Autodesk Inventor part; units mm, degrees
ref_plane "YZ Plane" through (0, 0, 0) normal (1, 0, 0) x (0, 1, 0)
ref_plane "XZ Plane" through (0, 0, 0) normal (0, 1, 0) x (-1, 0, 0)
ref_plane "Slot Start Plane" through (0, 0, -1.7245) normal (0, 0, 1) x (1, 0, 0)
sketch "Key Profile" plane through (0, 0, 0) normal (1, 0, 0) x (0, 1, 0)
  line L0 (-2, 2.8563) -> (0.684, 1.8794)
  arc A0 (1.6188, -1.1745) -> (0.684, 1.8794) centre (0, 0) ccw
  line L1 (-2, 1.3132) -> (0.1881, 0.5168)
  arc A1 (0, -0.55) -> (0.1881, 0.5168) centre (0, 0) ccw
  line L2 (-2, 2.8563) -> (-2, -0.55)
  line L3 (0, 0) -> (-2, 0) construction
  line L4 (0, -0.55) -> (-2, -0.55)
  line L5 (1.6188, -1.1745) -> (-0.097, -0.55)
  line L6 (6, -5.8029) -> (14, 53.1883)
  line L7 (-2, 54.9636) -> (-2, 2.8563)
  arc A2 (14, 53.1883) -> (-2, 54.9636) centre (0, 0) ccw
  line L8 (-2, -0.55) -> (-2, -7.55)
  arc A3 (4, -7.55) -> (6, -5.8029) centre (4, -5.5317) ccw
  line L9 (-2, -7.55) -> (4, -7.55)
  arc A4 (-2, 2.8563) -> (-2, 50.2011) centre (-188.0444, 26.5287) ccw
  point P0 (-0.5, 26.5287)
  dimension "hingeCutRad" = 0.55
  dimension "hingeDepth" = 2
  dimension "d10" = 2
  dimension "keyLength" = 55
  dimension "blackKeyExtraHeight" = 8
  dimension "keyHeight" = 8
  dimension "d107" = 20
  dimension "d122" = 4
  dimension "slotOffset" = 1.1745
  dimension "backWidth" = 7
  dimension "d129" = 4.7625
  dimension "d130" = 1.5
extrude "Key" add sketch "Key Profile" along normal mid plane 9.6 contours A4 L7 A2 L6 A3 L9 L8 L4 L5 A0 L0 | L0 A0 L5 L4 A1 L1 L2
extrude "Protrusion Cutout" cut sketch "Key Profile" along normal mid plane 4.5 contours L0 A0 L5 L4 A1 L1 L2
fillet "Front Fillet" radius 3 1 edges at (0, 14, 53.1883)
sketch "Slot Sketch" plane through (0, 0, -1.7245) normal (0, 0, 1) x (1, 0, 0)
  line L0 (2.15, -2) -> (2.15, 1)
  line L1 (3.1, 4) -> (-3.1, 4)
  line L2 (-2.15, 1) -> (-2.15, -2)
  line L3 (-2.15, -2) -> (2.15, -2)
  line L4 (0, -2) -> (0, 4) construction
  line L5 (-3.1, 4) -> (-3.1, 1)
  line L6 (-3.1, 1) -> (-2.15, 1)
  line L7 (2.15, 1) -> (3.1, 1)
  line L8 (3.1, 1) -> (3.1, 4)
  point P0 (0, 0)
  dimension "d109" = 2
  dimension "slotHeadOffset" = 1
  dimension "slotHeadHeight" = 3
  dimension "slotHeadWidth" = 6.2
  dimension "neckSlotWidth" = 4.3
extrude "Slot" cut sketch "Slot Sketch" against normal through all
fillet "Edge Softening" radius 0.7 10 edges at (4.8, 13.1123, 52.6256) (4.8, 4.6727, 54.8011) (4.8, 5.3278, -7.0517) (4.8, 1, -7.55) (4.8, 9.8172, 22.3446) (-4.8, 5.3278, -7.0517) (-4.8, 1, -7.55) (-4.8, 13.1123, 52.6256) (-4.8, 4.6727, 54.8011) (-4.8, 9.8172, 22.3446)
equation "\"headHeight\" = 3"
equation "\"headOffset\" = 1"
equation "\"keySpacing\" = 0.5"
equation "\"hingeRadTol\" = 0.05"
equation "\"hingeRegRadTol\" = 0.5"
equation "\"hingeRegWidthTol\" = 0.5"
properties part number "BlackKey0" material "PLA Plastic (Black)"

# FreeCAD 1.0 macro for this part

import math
import FreeCAD as App
import Part
import Sketcher
from FreeCAD import Vector
Q = App.Units.Quantity


def edges_at(feature, points):
    """Names of the edges that pass closest to the given points."""
    edges = feature.Shape.Edges
    near = lambda p: min(range(len(edges)), key=lambda i: edges[i].distToShape(Part.Vertex(*p))[0])
    return sorted({f"Edge{near(p) + 1}" for p in points})

doc = App.newDocument("Part")
body = doc.addObject("PartDesign::Body", "Body")

# Sketch on YZ plane
sketch1 = body.newObject("Sketcher::SketchObject", "Sketch")
sketch1.AttachmentSupport = (doc.getObject("YZ_Plane"), [""])
sketch1.MapMode = "FlatFace"
sketch1.addGeometry([
    Part.ArcOfCircle(Part.Circle(Vector(-188, 26.5, 0), Vector(0, 0, 1), 187.5), math.radians(-7.25), math.radians(7.25)),  # 0
    Part.LineSegment(Vector(-2, 2.9, 0), Vector(-2, 1.3, 0)),  # 1
    Part.LineSegment(Vector(-2, 1.3, 0), Vector(0.2, 0.5, 0)),  # 2
    Part.ArcOfCircle(Part.Circle(Vector(0, 0, 0), Vector(0, 0, 1), 0.6), math.radians(-90), math.radians(70)),  # 3
    Part.LineSegment(Vector(0, -0.6, 0), Vector(-2, -0.6, 0)),  # 4
    Part.LineSegment(Vector(-2, -0.6, 0), Vector(-2, -7.5, 0)),  # 5
    Part.LineSegment(Vector(-2, -7.5, 0), Vector(4, -7.5, 0)),  # 6
    Part.ArcOfCircle(Part.Circle(Vector(4, -5.5, 0), Vector(0, 0, 1), 2), math.radians(-90), math.radians(-8)),  # 7
    Part.LineSegment(Vector(6, -5.8, 0), Vector(14, 53.2, 0)),  # 8
    Part.ArcOfCircle(Part.Circle(Vector(0, 0, 0), Vector(0, 0, 1), 55), math.radians(75.25), math.radians(92.08)),  # 9
    Part.LineSegment(Vector(-2, 55, 0), Vector(-2, 50.2, 0)),  # 10
], False)
sketch1.addConstraint([
    Sketcher.Constraint("Coincident", 0, 1, 1, 1),
    Sketcher.Constraint("Coincident", 1, 2, 2, 1),
    Sketcher.Constraint("Tangent", 2, 2, 3, 2),
    Sketcher.Constraint("Tangent", 3, 1, 4, 1),
    Sketcher.Constraint("Coincident", 4, 2, 5, 1),
    Sketcher.Constraint("Coincident", 5, 2, 6, 1),
    Sketcher.Constraint("Tangent", 6, 2, 7, 1),
    Sketcher.Constraint("Tangent", 7, 2, 8, 1),
    Sketcher.Constraint("Coincident", 8, 2, 9, 1),
    Sketcher.Constraint("Coincident", 9, 2, 10, 1),
    Sketcher.Constraint("Coincident", 10, 2, 0, 2),
    Sketcher.Constraint("Vertical", 1),
    Sketcher.Constraint("Horizontal", 4),
    Sketcher.Constraint("Vertical", 5),
    Sketcher.Constraint("Horizontal", 6),
    Sketcher.Constraint("Vertical", 10),
    Sketcher.Constraint("Coincident", 3, 3, -1, 1),
    Sketcher.Constraint("Coincident", 9, 3, -1, 1),
    Sketcher.Constraint("Vertical", 1, 2, 4, 2),
    Sketcher.Constraint("Vertical", 5, 2, 9, 2),
    Sketcher.Constraint("Radius", 9, 55.0),
    Sketcher.Constraint("DistanceX", 4, 2, 4, 1, 2.0),
    Sketcher.Constraint("DistanceY", 5, 2, 5, 1, 7.0),
    Sketcher.Constraint("Angle", 2, Q("-20 deg")),
    Sketcher.Constraint("Radius", 3, 0.55),
    Sketcher.Constraint("DistanceX", -1, 1, 7, 3, 4.0),
    Sketcher.Constraint("DistanceX", 7, 3, 7, 2, 2.0),
    Sketcher.Constraint("DistanceY", 10, 2, 10, 1, 4.7625),
    Sketcher.Constraint("DistanceX", -1, 1, 8, 2, 14.0),
    Sketcher.Constraint("Radius", 0, 187.5444),
    Sketcher.Constraint("DistanceY", 1, 2, 1, 1, 1.543),
])
pad1 = body.newObject("PartDesign::Pad", "Pad")
pad1.Profile = sketch1
pad1.Length = 9.6
pad1.Midplane = True

# Sketch on YZ plane
sketch2 = body.newObject("Sketcher::SketchObject", "Sketch001")
sketch2.AttachmentSupport = (doc.getObject("YZ_Plane"), [""])
sketch2.MapMode = "FlatFace"
sketch2.addGeometry([
    Part.LineSegment(Vector(0.68, 1.88, 0), Vector(-2, 2.86, 0)),  # 0
    Part.LineSegment(Vector(-2, 2.86, 0), Vector(-2, 1.31, 0)),  # 1
    Part.LineSegment(Vector(-2, 1.31, 0), Vector(0.19, 0.52, 0)),  # 2
    Part.ArcOfCircle(Part.Circle(Vector(0, 0, 0), Vector(0, 0, 1), 0.55), math.radians(-90), math.radians(70)),  # 3
    Part.LineSegment(Vector(0, -0.55, 0), Vector(-0.1, -0.55, 0)),  # 4
    Part.LineSegment(Vector(-0.1, -0.55, 0), Vector(1.62, -1.17, 0)),  # 5
    Part.ArcOfCircle(Part.Circle(Vector(0, 0, 0), Vector(0, 0, 1), 2), math.radians(-36), math.radians(70)),  # 6
], False)
sketch2.addConstraint([
    Sketcher.Constraint("Coincident", 0, 2, 1, 1),
    Sketcher.Constraint("Coincident", 1, 2, 2, 1),
    Sketcher.Constraint("Tangent", 2, 2, 3, 2),
    Sketcher.Constraint("Tangent", 3, 1, 4, 1),
    Sketcher.Constraint("Coincident", 4, 2, 5, 1),
    Sketcher.Constraint("Coincident", 5, 2, 6, 1),
    Sketcher.Constraint("Tangent", 6, 2, 0, 1),
    Sketcher.Constraint("Vertical", 1),
    Sketcher.Constraint("Horizontal", 4),
    Sketcher.Constraint("Coincident", 3, 3, -1, 1),
    Sketcher.Constraint("Coincident", 6, 3, -1, 1),
    Sketcher.Constraint("Parallel", 0, 2),
    Sketcher.Constraint("Parallel", 2, 5),
    Sketcher.Constraint("Radius", 6, 2.0),
    Sketcher.Constraint("Angle", 2, Q("-20 deg")),
    Sketcher.Constraint("Radius", 3, 0.55),
    Sketcher.Constraint("DistanceX", 0, 2, -1, 1, 2.0),
    Sketcher.Constraint("DistanceY", 5, 2, -1, 1, 1.1745),
])
pocket1 = body.newObject("PartDesign::Pocket", "Pocket")
pocket1.Profile = sketch2
pocket1.Length = 4.5
pocket1.Midplane = True
doc.recompute()

fillet = body.newObject("PartDesign::Fillet", "Fillet")
fillet.Base = (pocket1, edges_at(pocket1, [(0, 14, 53.188)]))
fillet.Radius = 3

# Sketch on XY plane
sketch3 = body.newObject("Sketcher::SketchObject", "Sketch002")
sketch3.AttachmentSupport = (doc.getObject("XY_Plane"), [""])
sketch3.MapMode = "FlatFace"
sketch3.AttachmentOffset = App.Placement(Vector(0, 0, -1.7245), App.Rotation())
sketch3.addGeometry([
    Part.LineSegment(Vector(-2.1, -2, 0), Vector(2.1, -2, 0)),  # 0
    Part.LineSegment(Vector(2.1, -2, 0), Vector(2.1, 1, 0)),  # 1
    Part.LineSegment(Vector(2.1, 1, 0), Vector(3.1, 1, 0)),  # 2
    Part.LineSegment(Vector(3.1, 1, 0), Vector(3.1, 4, 0)),  # 3
    Part.LineSegment(Vector(3.1, 4, 0), Vector(-3.1, 4, 0)),  # 4
    Part.LineSegment(Vector(-3.1, 4, 0), Vector(-3.1, 1, 0)),  # 5
    Part.LineSegment(Vector(-3.1, 1, 0), Vector(-2.1, 1, 0)),  # 6
    Part.LineSegment(Vector(-2.1, 1, 0), Vector(-2.1, -2, 0)),  # 7
], False)
sketch3.addConstraint([
    Sketcher.Constraint("Coincident", 0, 2, 1, 1),
    Sketcher.Constraint("Coincident", 1, 2, 2, 1),
    Sketcher.Constraint("Coincident", 2, 2, 3, 1),
    Sketcher.Constraint("Coincident", 3, 2, 4, 1),
    Sketcher.Constraint("Coincident", 4, 2, 5, 1),
    Sketcher.Constraint("Coincident", 5, 2, 6, 1),
    Sketcher.Constraint("Coincident", 6, 2, 7, 1),
    Sketcher.Constraint("Coincident", 7, 2, 0, 1),
    Sketcher.Constraint("Horizontal", 0),
    Sketcher.Constraint("Vertical", 1),
    Sketcher.Constraint("Horizontal", 2),
    Sketcher.Constraint("Vertical", 3),
    Sketcher.Constraint("Horizontal", 4),
    Sketcher.Constraint("Vertical", 5),
    Sketcher.Constraint("Horizontal", 6),
    Sketcher.Constraint("Vertical", 7),
    Sketcher.Constraint("Symmetric", 2, 2, 5, 2, -2),
    Sketcher.Constraint("Equal", 2, 6),
    Sketcher.Constraint("Equal", 1, 3),
    Sketcher.Constraint("DistanceY", 1, 1, 1, 2, 3.0),
    Sketcher.Constraint("DistanceX", 0, 1, 0, 2, 4.3),
    Sketcher.Constraint("DistanceX", 4, 2, 4, 1, 6.2),
    Sketcher.Constraint("DistanceY", 0, 2, -1, 1, 2.0),
])
pocket2 = body.newObject("PartDesign::Pocket", "Pocket001")
pocket2.Profile = sketch3
pocket2.Type = "ThroughAll"
doc.recompute()

fillet2 = body.newObject("PartDesign::Fillet", "Fillet001")
fillet2.Base = (pocket2, edges_at(pocket2, [
    (4.8, 13.112, 52.626),
    (4.8, 4.673, 54.801),
    (4.8, 5.328, -7.052),
    (4.8, 1, -7.55),
    (4.8, 9.817, 22.345),
    (-4.8, 5.328, -7.052),
    (-4.8, 1, -7.55),
    (-4.8, 13.112, 52.626),
    (-4.8, 4.673, 54.801),
    (-4.8, 9.817, 22.345),
]))
fillet2.Radius = 0.7

doc.recompute()
